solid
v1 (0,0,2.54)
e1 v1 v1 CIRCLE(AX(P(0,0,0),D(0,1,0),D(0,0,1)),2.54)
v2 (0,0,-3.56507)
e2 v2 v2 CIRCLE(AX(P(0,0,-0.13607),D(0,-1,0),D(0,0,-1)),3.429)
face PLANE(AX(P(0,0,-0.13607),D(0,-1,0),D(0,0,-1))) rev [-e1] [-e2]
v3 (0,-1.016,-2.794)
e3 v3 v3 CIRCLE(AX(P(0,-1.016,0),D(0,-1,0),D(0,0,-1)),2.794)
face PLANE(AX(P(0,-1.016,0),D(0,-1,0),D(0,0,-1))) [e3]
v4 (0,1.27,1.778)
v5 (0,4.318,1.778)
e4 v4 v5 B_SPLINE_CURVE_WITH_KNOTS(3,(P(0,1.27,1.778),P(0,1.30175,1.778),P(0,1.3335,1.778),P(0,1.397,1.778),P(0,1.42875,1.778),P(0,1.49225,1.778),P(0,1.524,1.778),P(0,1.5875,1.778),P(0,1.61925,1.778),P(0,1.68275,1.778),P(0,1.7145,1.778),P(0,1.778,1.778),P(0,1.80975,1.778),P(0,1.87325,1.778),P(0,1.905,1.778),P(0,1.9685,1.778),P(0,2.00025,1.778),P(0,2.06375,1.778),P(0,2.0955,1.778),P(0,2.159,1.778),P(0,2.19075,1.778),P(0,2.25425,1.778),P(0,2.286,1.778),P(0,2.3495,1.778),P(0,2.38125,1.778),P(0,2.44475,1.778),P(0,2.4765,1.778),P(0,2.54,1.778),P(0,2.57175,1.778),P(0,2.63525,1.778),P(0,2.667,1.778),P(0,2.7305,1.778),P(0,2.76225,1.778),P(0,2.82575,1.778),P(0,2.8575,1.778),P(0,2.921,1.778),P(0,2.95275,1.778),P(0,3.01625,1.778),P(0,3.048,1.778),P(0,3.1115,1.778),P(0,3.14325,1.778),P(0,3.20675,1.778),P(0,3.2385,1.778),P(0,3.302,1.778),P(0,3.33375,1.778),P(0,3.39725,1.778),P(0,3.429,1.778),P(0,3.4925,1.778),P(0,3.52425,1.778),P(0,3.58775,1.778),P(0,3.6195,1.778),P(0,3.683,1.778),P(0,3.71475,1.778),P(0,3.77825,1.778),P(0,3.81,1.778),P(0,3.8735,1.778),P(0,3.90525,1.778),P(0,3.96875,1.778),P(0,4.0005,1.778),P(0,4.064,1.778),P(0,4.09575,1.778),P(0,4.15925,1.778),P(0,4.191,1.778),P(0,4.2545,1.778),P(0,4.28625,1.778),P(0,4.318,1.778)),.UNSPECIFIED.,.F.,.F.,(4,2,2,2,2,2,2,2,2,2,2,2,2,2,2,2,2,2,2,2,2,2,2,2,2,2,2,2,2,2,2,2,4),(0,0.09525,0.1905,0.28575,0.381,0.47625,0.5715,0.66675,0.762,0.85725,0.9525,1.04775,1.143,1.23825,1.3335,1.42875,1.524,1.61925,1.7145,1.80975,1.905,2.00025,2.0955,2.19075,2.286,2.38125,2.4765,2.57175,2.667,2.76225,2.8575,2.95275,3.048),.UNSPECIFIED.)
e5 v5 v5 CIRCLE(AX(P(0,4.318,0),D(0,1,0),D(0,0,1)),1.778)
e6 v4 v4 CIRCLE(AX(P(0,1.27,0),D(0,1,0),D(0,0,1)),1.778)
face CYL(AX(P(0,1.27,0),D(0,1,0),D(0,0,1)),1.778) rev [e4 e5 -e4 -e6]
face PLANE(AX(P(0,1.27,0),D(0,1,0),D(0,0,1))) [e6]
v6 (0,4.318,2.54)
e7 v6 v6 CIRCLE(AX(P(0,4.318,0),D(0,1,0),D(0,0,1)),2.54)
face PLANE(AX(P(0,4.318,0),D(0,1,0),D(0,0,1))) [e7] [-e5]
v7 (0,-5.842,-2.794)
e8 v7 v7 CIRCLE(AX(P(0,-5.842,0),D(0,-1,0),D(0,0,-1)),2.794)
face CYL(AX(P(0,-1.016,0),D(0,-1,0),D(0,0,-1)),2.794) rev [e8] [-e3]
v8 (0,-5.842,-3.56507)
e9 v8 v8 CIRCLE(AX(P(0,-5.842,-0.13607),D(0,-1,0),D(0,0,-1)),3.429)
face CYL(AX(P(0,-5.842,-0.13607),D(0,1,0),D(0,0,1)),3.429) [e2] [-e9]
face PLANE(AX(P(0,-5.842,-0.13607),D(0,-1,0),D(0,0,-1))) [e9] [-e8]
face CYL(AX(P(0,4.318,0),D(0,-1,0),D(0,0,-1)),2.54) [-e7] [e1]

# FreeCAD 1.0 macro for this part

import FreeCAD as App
import Part
import Sketcher
Q = App.Units.Quantity

doc = App.newDocument("Part")
body = doc.addObject("PartDesign::Body", "Body")

sketch1 = body.newObject("Sketcher::SketchObject", "Sketch")
sketch1.AttachmentSupport = (doc.getObject("XZ_Plane"), [""])
sketch1.MapMode = "FlatFace"
sketch1.addGeometry(Part.Circle(App.Vector(0, 0, 0), App.Vector(0, 0, 1), 2.5), False)
sketch1.addConstraint([
    Sketcher.Constraint("Coincident", 0, 3, -1, 1),
    Sketcher.Constraint("Diameter", 0, Q("0.2 in")),
])
pad1 = body.newObject("PartDesign::Pad", "Pad")
pad1.Profile = sketch1
pad1.Length = Q("0.17 in")
pad1.Reversed = True

sketch2 = body.newObject("Sketcher::SketchObject", "Sketch001")
sketch2.AttachmentSupport = (doc.getObject("XZ_Plane"), [""])
sketch2.MapMode = "FlatFace"
sketch2.AttachmentOffset = App.Placement(App.Vector(0, 0, -0.17 * 25.4), App.Rotation())
sketch2.addGeometry(Part.Circle(App.Vector(0, 0, 0), App.Vector(0, 0, 1), 1.8), False)
sketch2.addConstraint([
    Sketcher.Constraint("Coincident", 0, 3, -1, 1),
    Sketcher.Constraint("Diameter", 0, Q("0.14 in")),
])
pocket1 = body.newObject("PartDesign::Pocket", "Pocket")
pocket1.Profile = sketch2
pocket1.Length = Q("0.12 in")
pocket1.Reversed = True

sketch3 = body.newObject("Sketcher::SketchObject", "Sketch002")
sketch3.AttachmentSupport = (doc.getObject("XZ_Plane"), [""])
sketch3.MapMode = "FlatFace"
sketch3.addGeometry(Part.Circle(App.Vector(0, -0.1, 0), App.Vector(0, 0, 1), 3.4), False)
sketch3.addConstraint([
    Sketcher.Constraint("PointOnObject", 0, 3, -2),
    Sketcher.Constraint("Diameter", 0, Q("0.27 in")),
    Sketcher.Constraint("DistanceY", 0, 3, -1, 1, Q("0.13607 mm")),
])
pad2 = body.newObject("PartDesign::Pad", "Pad001")
pad2.Profile = sketch3
pad2.Length = Q("0.23 in")

sketch4 = body.newObject("Sketcher::SketchObject", "Sketch003")
sketch4.AttachmentSupport = (doc.getObject("XZ_Plane"), [""])
sketch4.MapMode = "FlatFace"
sketch4.AttachmentOffset = App.Placement(App.Vector(0, 0, 0.23 * 25.4), App.Rotation())
sketch4.addGeometry(Part.Circle(App.Vector(0, 0, 0), App.Vector(0, 0, 1), 2.8), False)
sketch4.addConstraint([
    Sketcher.Constraint("Coincident", 0, 3, -1, 1),
    Sketcher.Constraint("Diameter", 0, Q("0.22 in")),
])
pocket2 = body.newObject("PartDesign::Pocket", "Pocket001")
pocket2.Profile = sketch4
pocket2.Length = Q("0.19 in")

doc.recompute()
